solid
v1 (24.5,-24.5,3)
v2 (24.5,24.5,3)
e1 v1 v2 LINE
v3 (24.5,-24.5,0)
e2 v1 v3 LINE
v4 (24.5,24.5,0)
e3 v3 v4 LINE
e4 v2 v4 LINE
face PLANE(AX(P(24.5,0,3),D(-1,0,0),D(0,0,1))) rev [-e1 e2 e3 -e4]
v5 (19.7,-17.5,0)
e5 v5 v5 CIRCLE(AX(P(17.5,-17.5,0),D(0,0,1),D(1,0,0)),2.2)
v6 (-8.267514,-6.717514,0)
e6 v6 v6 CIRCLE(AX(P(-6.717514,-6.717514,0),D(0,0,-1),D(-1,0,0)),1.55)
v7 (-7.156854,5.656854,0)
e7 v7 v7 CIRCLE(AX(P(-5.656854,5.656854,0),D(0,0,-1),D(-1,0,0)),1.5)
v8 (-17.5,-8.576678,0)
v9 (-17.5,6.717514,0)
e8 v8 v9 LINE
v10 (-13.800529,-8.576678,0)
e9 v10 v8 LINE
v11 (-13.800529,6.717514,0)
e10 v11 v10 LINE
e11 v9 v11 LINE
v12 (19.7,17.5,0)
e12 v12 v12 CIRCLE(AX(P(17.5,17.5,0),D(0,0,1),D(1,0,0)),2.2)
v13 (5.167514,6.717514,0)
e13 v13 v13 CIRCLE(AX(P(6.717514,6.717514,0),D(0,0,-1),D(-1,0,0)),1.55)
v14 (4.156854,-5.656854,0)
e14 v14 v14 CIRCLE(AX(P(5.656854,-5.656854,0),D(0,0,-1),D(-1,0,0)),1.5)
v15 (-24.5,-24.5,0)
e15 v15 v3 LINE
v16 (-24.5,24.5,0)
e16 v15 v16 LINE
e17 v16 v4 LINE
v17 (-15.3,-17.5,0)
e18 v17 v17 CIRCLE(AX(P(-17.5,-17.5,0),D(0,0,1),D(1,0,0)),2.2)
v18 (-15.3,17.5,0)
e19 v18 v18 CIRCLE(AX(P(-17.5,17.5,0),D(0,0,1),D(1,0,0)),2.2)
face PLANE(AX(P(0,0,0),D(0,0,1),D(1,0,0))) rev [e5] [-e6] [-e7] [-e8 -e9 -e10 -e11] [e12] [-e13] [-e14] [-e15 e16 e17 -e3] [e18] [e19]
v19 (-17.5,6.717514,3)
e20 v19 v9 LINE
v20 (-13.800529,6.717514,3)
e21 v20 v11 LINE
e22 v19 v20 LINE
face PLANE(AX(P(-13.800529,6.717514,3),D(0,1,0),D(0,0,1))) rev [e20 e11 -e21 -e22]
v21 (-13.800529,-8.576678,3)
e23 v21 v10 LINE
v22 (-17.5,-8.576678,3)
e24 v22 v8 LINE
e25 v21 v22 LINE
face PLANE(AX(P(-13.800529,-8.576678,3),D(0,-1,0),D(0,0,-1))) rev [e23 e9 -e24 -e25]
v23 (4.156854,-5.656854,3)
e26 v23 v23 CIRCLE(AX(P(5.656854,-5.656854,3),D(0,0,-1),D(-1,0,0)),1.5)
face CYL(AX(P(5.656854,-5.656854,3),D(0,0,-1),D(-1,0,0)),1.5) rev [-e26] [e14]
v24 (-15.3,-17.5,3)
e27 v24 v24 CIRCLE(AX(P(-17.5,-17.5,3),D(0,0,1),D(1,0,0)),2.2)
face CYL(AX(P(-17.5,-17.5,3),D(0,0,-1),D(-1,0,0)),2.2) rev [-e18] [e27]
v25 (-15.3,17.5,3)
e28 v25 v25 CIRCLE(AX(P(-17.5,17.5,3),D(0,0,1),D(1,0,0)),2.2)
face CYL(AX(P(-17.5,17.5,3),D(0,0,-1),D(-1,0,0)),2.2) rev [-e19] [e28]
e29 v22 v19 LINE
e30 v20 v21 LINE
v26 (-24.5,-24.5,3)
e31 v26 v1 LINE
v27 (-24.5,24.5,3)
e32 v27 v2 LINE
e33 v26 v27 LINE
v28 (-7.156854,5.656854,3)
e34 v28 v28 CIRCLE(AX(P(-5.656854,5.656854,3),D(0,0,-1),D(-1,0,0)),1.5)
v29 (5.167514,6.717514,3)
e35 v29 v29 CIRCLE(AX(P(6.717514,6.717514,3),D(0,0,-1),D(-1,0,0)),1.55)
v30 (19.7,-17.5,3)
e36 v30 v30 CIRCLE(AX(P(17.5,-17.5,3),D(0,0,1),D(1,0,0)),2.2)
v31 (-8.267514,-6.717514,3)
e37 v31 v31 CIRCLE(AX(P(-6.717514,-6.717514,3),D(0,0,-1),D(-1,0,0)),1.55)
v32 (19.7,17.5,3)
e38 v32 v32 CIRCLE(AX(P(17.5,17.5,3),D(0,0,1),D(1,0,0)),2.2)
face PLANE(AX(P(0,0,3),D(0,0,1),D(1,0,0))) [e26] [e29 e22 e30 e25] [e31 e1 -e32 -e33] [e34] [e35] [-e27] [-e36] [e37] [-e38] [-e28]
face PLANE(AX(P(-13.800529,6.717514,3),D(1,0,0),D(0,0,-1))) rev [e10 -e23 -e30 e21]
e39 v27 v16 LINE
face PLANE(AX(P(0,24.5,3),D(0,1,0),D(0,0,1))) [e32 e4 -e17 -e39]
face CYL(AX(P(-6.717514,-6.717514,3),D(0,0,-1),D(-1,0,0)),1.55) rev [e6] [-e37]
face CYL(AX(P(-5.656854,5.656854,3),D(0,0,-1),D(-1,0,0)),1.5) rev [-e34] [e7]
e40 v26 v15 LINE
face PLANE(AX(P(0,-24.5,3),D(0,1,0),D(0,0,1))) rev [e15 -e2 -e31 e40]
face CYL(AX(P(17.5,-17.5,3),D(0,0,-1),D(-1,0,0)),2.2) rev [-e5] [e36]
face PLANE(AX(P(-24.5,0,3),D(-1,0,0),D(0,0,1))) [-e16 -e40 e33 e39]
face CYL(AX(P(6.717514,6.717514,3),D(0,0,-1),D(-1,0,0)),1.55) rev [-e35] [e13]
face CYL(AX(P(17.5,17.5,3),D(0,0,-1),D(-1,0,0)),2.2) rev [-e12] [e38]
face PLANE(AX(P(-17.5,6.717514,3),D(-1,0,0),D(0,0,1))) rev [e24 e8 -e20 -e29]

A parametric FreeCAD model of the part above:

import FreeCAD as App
import Part
import Sketcher

V = App.Vector
Q = App.Units.Quantity


def add_polygon(sketch, points):
    """Adds a closed chain of lines whose ends are joined by coincident constraints."""
    first, n = sketch.GeometryCount, len(points)
    for a, b in zip(points, points[1:] + points[:1]):
        sketch.addGeometry(Part.LineSegment(App.Vector(*a, 0), App.Vector(*b, 0)), False)
    for i in range(n):
        sketch.addConstraint(Sketcher.Constraint("Coincident", first + i, 2, first + (i + 1) % n, 1))

doc = App.newDocument("Part")
body = doc.addObject("PartDesign::Body", "Body")

sketch1 = body.newObject("Sketcher::SketchObject", "Sketch")
sketch1.AttachmentSupport = (doc.getObject("XY_Plane"), [""])
sketch1.MapMode = "FlatFace"
add_polygon(sketch1, [(-24.5, 24.5), (-24.5, -24.5), (24.5, -24.5), (24.5, 24.5)])
sketch1.addGeometry(Part.Circle(V(-17.5, -17.5, 0), V(0, 0, 1), 2.2), False)
sketch1.addGeometry(Part.Circle(V(17.5, -17.5, 0), V(0, 0, 1), 2.2), False)
sketch1.addGeometry(Part.Circle(V(-17.5, 17.5, 0), V(0, 0, 1), 2.2), False)
sketch1.addGeometry(Part.Circle(V(17.5, 17.5, 0), V(0, 0, 1), 2.2), False)
sketch1.addConstraint([
    Sketcher.Constraint("Vertical", 0),
    Sketcher.Constraint("Horizontal", 1),
    Sketcher.Constraint("Vertical", 2),
    Sketcher.Constraint("Horizontal", 3),
    Sketcher.Constraint("Equal", 4, 5),
    Sketcher.Constraint("Equal", 5, 6),
    Sketcher.Constraint("Equal", 6, 7),
    Sketcher.Constraint("Symmetric", 5, 3, 6, 3, -1, 1),
    Sketcher.Constraint("Symmetric", 4, 3, 7, 3, -1, 1),
    Sketcher.Constraint("Symmetric", 0, 2, 2, 2, -1, 1),
    Sketcher.Constraint("Symmetric", 4, 3, 5, 3, -2),
    Sketcher.Constraint("Equal", 3, 0),
    Sketcher.Constraint("Diameter", 4, Q("4.4 mm")),
    Sketcher.Constraint("DistanceX", 1, 1, 1, 2, Q("49 mm")),
    Sketcher.Constraint("DistanceX", 4, 3, 5, 3, Q("35 mm")),
    Sketcher.Constraint("DistanceY", 4, 3, 6, 3, Q("35 mm")),
])
pad1 = body.newObject("PartDesign::Pad", "Pad")
pad1.Profile = sketch1
pad1.Length = 3

sketch2 = body.newObject("Sketcher::SketchObject", "Sketch001")
sketch2.AttachmentSupport = (doc.getObject("XY_Plane"), [""])
sketch2.MapMode = "FlatFace"
sketch2.addGeometry(Part.Circle(V(6.7, 6.7, 0), V(0, 0, 1), 1.6), False)
sketch2.addGeometry(Part.Circle(V(-5.7, 5.7, 0), V(0, 0, 1), 1.5), False)
sketch2.addGeometry(Part.Circle(V(-6.7, -6.7, 0), V(0, 0, 1), 1.6), False)
sketch2.addGeometry(Part.Circle(V(5.7, -5.7, 0), V(0, 0, 1), 1.5), False)
add_polygon(sketch2, [(-13.8, 6.7), (-13.8, -8.6), (-17.5, -8.6), (-17.5, 6.7)])
sketch2.addConstraint([
    Sketcher.Constraint("Vertical", 4),
    Sketcher.Constraint("Horizontal", 5),
    Sketcher.Constraint("Vertical", 6),
    Sketcher.Constraint("Horizontal", 7),
    Sketcher.Constraint("Equal", 0, 2),
    Sketcher.Constraint("Equal", 1, 3),
    Sketcher.Constraint("Symmetric", 0, 3, 2, 3, -1, 1),
    Sketcher.Constraint("Symmetric", 1, 3, 3, 3, -1, 1),
    Sketcher.Constraint("Horizontal", 0, 3, 6, 2),
    Sketcher.Constraint("Diameter", 1, Q("3 mm")),
    Sketcher.Constraint("Diameter", 0, Q("3.1 mm")),
    Sketcher.Constraint("DistanceX", 5, 2, -1, 1, Q("17.5 mm")),
    Sketcher.Constraint("DistanceX", 5, 2, 5, 1, Q("3.699471 mm")),
    Sketcher.Constraint("DistanceY", 4, 2, 4, 1, Q("15.294192 mm")),
    Sketcher.Constraint("DistanceX", 1, 3, 0, 3, Q("12.374369 mm")),
    Sketcher.Constraint("DistanceY", 1, 3, 0, 3, Q("1.06066 mm")),
    Sketcher.Constraint("DistanceX", 2, 3, 1, 3, Q("1.06066 mm")),
    Sketcher.Constraint("DistanceY", 2, 3, 1, 3, Q("12.374369 mm")),
])
pocket1 = body.newObject("PartDesign::Pocket", "Pocket")
pocket1.Profile = sketch2
pocket1.Length = 3
pocket1.Reversed = True

doc.recompute()
